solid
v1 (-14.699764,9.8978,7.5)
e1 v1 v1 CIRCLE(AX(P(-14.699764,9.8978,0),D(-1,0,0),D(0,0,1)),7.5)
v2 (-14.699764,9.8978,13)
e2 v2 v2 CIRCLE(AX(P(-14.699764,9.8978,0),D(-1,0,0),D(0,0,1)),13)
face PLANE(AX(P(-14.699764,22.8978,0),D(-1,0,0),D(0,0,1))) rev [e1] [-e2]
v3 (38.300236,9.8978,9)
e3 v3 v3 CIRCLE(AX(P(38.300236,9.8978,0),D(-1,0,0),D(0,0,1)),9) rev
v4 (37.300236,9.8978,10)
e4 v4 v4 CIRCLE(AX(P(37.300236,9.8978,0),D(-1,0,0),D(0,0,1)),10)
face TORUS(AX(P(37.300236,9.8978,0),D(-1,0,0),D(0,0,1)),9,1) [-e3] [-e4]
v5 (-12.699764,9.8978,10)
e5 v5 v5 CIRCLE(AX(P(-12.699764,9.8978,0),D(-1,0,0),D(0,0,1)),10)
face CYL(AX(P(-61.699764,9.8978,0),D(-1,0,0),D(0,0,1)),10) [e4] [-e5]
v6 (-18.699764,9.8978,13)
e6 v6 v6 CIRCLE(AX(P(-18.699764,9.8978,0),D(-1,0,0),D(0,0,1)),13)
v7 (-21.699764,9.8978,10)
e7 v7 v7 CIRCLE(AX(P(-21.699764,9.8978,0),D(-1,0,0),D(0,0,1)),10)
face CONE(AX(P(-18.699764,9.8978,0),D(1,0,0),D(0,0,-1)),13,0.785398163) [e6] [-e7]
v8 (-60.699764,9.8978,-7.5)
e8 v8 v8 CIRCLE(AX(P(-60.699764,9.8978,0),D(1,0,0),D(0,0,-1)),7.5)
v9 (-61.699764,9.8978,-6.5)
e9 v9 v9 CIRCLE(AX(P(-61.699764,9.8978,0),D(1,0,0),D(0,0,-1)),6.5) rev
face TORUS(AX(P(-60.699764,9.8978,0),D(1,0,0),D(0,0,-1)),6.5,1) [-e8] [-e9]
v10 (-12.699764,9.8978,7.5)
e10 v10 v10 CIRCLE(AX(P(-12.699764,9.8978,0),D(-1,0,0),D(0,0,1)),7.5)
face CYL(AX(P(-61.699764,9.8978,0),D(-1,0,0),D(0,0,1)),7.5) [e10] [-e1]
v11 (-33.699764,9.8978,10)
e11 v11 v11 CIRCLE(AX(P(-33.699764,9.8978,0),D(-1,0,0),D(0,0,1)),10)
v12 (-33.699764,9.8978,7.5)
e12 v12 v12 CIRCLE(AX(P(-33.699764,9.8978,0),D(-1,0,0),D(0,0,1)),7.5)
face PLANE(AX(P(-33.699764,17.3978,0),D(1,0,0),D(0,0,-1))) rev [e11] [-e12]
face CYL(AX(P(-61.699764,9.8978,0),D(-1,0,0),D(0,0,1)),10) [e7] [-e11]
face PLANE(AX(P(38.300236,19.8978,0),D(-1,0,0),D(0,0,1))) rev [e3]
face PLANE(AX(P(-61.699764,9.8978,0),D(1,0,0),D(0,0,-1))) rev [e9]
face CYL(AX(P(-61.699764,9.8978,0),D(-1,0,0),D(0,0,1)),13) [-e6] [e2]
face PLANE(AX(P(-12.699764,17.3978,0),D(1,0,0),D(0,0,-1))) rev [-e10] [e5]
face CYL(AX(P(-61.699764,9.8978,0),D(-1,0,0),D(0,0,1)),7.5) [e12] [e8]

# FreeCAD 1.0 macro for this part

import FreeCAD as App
import Part
import Sketcher

V = App.Vector
Q = App.Units.Quantity


def edges_at(feature, points):
    """Names of the edges that pass closest to the given points."""
    edges = feature.Shape.Edges
    near = lambda p: min(range(len(edges)), key=lambda i: edges[i].distToShape(Part.Vertex(*p))[0])
    return sorted({f"Edge{near(p) + 1}" for p in points})


def add_polygon(sketch, points):
    """Adds a closed chain of lines whose ends are joined by coincident constraints."""
    first, n = sketch.GeometryCount, len(points)
    for a, b in zip(points, points[1:] + points[:1]):
        sketch.addGeometry(Part.LineSegment(App.Vector(*a, 0), App.Vector(*b, 0)), False)
    for i in range(n):
        sketch.addConstraint(Sketcher.Constraint("Coincident", first + i, 2, first + (i + 1) % n, 1))

doc = App.newDocument("Part")
body = doc.addObject("PartDesign::Body", "Body")

# Sketch on XY plane
sketch1 = body.newObject("Sketcher::SketchObject", "Sketch")
sketch1.AttachmentSupport = (doc.getObject("XY_Plane"), [""])
sketch1.MapMode = "FlatFace"
add_polygon(sketch1, [(-61.7, 17.4), (-61.7, 9.9), (38.3, 9.9), (38.3, 19.9), (-12.7, 19.9), (-12.7, 17.4), (-14.7, 17.4), (-14.7, 22.9), (-18.7, 22.9), (-21.7, 19.9), (-33.7, 19.9), (-33.7, 17.4)])  # lines 0-11
sketch1.addGeometry(Part.LineSegment(V(-61.7, 9.9, 0), V(38.3, 9.9, 0)), True)  # axis
sketch1.addConstraint(Sketcher.Constraint("Vertical", 0))
sketch1.addConstraint(Sketcher.Constraint("Horizontal", 1))
sketch1.addConstraint(Sketcher.Constraint("Vertical", 2))
sketch1.addConstraint(Sketcher.Constraint("Horizontal", 3))
sketch1.addConstraint(Sketcher.Constraint("Vertical", 4))
sketch1.addConstraint(Sketcher.Constraint("Horizontal", 5))
sketch1.addConstraint(Sketcher.Constraint("Vertical", 6))
sketch1.addConstraint(Sketcher.Constraint("Horizontal", 7))
sketch1.addConstraint(Sketcher.Constraint("Horizontal", 9))
sketch1.addConstraint(Sketcher.Constraint("Vertical", 10))
sketch1.addConstraint(Sketcher.Constraint("Horizontal", 11))
sketch1.addConstraint(Sketcher.Constraint("Horizontal", 12))
sketch1.addConstraint(Sketcher.Constraint("Coincident", 12, 1, 0, 2))
sketch1.addConstraint(Sketcher.Constraint("Horizontal", 3, 2, 8, 2))
sketch1.addConstraint(Sketcher.Constraint("Horizontal", 5, 2, 10, 2))
sketch1.addConstraint(Sketcher.Constraint("Vertical", 2, 2, 12, 2))
sketch1.addConstraint(Sketcher.Constraint("DistanceX", 1, 1, 1, 2, Q("100 mm")))
sketch1.addConstraint(Sketcher.Constraint("DistanceX", 3, 2, 3, 1, Q("51 mm")))
sketch1.addConstraint(Sketcher.Constraint("DistanceX", 5, 2, 5, 1, Q("2 mm")))
sketch1.addConstraint(Sketcher.Constraint("DistanceX", 7, 2, 7, 1, Q("4 mm")))
sketch1.addConstraint(Sketcher.Constraint("DistanceX", 9, 2, 9, 1, Q("12 mm")))
sketch1.addConstraint(Sketcher.Constraint("DistanceX", 11, 2, 11, 1, Q("28 mm")))
sketch1.addConstraint(Sketcher.Constraint("DistanceY", 2, 1, 2, 2, Q("10 mm")))
sketch1.addConstraint(Sketcher.Constraint("Angle", 8, Q("-135 deg")))
sketch1.addConstraint(Sketcher.Constraint("DistanceY", 0, 2, 0, 1, Q("7.5 mm")))
sketch1.addConstraint(Sketcher.Constraint("DistanceY", -1, 1, 0, 2, Q("9.8978 mm")))
sketch1.addConstraint(Sketcher.Constraint("DistanceX", 0, 2, -1, 1, Q("61.699764 mm")))
revolution = body.newObject("PartDesign::Revolution", "Revolution")
revolution.Profile = sketch1
revolution.ReferenceAxis = (sketch1, ["Axis0"])
revolution.Angle = 360
doc.recompute()

fillet = body.newObject("PartDesign::Fillet", "Fillet")
fillet.Base = (revolution, edges_at(revolution, [(-61.7, 9.898, -7.5), (38.3, 9.898, -10)]))
fillet.Radius = 1

doc.recompute()
